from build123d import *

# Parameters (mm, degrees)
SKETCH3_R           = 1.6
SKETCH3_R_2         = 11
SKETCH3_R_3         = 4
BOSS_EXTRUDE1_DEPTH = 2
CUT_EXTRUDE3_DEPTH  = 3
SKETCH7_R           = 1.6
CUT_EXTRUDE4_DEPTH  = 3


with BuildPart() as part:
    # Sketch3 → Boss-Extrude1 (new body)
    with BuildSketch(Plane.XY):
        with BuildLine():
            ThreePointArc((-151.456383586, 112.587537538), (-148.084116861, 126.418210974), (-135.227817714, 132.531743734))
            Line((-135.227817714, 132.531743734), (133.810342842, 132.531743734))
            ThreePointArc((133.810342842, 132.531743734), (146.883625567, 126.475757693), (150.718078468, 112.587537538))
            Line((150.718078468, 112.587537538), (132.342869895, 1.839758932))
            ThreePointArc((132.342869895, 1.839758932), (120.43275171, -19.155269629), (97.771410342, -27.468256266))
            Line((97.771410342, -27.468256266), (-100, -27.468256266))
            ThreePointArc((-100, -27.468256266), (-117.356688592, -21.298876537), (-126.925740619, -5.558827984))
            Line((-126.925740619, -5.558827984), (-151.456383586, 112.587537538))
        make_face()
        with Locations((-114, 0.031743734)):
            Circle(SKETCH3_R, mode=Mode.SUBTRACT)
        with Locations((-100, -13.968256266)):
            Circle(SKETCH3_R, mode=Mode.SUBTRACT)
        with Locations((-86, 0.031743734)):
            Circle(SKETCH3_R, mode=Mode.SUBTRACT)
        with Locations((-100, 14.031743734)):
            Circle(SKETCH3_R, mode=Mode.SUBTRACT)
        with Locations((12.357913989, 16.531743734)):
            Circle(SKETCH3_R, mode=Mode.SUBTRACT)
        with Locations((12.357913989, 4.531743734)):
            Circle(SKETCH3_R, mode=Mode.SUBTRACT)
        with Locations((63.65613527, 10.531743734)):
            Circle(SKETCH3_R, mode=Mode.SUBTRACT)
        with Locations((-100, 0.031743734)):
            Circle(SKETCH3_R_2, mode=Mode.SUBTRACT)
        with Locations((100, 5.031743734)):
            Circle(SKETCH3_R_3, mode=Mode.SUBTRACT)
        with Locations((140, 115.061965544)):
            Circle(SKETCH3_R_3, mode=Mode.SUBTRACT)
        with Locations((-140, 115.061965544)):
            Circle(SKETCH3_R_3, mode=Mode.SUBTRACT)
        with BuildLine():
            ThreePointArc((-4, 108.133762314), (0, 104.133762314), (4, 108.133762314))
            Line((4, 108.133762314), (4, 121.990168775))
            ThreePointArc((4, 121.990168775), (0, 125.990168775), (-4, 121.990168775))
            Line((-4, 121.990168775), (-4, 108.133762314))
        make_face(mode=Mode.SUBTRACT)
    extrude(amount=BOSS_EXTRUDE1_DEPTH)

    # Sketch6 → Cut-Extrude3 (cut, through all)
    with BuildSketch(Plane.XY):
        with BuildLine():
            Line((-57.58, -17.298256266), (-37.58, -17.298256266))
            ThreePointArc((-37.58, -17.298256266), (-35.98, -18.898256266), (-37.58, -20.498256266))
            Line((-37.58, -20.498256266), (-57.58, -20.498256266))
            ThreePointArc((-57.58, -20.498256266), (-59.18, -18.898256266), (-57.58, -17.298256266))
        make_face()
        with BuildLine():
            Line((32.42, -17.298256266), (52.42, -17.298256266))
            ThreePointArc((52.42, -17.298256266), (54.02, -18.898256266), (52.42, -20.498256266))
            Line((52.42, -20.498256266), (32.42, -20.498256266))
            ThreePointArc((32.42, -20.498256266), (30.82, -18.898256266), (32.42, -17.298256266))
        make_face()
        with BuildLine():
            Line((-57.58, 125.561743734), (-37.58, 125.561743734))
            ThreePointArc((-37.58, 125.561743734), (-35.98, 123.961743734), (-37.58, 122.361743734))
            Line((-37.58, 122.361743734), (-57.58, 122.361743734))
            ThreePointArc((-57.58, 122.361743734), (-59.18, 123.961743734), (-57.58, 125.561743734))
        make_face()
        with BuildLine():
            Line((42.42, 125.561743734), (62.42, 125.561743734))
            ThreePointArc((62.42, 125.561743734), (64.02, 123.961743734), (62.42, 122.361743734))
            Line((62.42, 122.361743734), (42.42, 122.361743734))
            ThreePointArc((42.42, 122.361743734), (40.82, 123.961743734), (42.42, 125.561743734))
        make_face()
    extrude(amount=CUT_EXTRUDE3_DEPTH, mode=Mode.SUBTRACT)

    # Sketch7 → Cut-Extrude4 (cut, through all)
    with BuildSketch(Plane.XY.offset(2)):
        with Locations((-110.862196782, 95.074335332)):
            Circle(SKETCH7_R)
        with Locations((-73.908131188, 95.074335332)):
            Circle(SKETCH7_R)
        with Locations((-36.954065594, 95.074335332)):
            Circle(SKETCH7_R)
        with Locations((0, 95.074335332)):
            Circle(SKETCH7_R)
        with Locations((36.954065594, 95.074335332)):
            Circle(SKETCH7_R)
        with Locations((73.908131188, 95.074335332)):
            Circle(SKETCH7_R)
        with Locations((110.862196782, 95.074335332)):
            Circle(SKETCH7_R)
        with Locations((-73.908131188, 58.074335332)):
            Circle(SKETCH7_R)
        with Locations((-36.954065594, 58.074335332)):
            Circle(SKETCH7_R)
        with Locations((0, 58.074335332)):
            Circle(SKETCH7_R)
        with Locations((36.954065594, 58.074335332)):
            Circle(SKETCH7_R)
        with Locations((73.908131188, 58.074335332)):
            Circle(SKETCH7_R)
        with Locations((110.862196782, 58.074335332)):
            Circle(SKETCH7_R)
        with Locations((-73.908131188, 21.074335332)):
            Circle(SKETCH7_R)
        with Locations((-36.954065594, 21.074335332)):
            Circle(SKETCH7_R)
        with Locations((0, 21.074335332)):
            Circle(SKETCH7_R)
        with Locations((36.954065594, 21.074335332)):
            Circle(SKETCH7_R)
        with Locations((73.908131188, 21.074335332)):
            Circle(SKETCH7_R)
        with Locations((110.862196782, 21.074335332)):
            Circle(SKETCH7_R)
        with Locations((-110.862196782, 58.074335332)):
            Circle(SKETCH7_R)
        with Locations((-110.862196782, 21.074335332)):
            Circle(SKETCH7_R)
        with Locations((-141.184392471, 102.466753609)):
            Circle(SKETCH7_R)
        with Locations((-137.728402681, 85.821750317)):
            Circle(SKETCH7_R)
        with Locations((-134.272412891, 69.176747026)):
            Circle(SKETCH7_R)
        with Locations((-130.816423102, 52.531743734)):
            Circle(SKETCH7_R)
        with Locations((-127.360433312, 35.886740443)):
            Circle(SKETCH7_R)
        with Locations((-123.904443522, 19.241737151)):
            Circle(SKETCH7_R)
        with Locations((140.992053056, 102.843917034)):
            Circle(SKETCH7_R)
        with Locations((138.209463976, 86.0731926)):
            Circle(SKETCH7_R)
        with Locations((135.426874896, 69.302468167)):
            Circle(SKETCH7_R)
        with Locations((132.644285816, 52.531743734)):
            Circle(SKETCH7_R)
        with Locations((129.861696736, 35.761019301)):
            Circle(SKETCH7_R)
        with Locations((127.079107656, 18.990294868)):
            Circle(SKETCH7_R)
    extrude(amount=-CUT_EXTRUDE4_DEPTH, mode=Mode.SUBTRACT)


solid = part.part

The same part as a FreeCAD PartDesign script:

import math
import FreeCAD as App
import Part
import Sketcher
from FreeCAD import Vector

doc = App.newDocument("Part")
body = doc.addObject("PartDesign::Body", "Body")

# Sketch on XY plane
sketch1 = body.newObject("Sketcher::SketchObject", "Sketch")
sketch1.AttachmentSupport = (doc.getObject("XY_Plane"), [""])
sketch1.MapMode = "FlatFace"
sketch1.addGeometry([
    Part.ArcOfCircle(Part.Circle(Vector(-135.2, 116, 0), Vector(0, 0, 1), 16.6), math.radians(90), math.radians(192)),  # 0
    Part.LineSegment(Vector(-151.5, 112.6, 0), Vector(-126.9, -5.6, 0)),  # 1
    Part.ArcOfCircle(Part.Circle(Vector(-100, 0, 0), Vector(0, 0, 1), 27.5), math.radians(-168), math.radians(-90)),  # 2
    Part.LineSegment(Vector(-100, -27.5, 0), Vector(97.8, -27.5, 0)),  # 3
    Part.ArcOfCircle(Part.Circle(Vector(97.8, 7.6, 0), Vector(0, 0, 1), 35), math.radians(-90), math.radians(-9)),  # 4
    Part.LineSegment(Vector(132.3, 1.8, 0), Vector(150.7, 112.6, 0)),  # 5
    Part.ArcOfCircle(Part.Circle(Vector(133.8, 115.4, 0), Vector(0, 0, 1), 17.1), math.radians(-9), math.radians(90)),  # 6
    Part.LineSegment(Vector(133.8, 132.5, 0), Vector(-135.2, 132.5, 0)),  # 7
    Part.Circle(Vector(100, 5, 0), Vector(0, 0, 1), 4),  # 8
    Part.Circle(Vector(63.7, 10.5, 0), Vector(0, 0, 1), 1.6),  # 9
    Part.Circle(Vector(12.4, 4.5, 0), Vector(0, 0, 1), 1.6),  # 10
    Part.Circle(Vector(12.4, 16.5, 0), Vector(0, 0, 1), 1.6),  # 11
    Part.Circle(Vector(-100, -14, 0), Vector(0, 0, 1), 1.6),  # 12
    Part.Circle(Vector(-86, 0, 0), Vector(0, 0, 1), 1.6),  # 13
    Part.Circle(Vector(-100, 0, 0), Vector(0, 0, 1), 11),  # 14
    Part.Circle(Vector(-114, 0, 0), Vector(0, 0, 1), 1.6),  # 15
    Part.Circle(Vector(-100, 14, 0), Vector(0, 0, 1), 1.6),  # 16
    Part.Circle(Vector(140, 115.1, 0), Vector(0, 0, 1), 4),  # 17
    Part.LineSegment(Vector(-4, 108.1, 0), Vector(-4, 122, 0)),  # 18
    Part.ArcOfCircle(Part.Circle(Vector(0, 122, 0), Vector(0, 0, 1), 4), math.radians(0), math.radians(180)),  # 19
    Part.LineSegment(Vector(4, 122, 0), Vector(4, 108.1, 0)),  # 20
    Part.ArcOfCircle(Part.Circle(Vector(0, 108.1, 0), Vector(0, 0, 1), 4), math.radians(180), math.radians(360)),  # 21
    Part.Circle(Vector(-140, 115.1, 0), Vector(0, 0, 1), 4),  # 22
], False)
sketch1.addConstraint([
    Sketcher.Constraint("Tangent", 0, 2, 1, 1),
    Sketcher.Constraint("Tangent", 1, 2, 2, 1),
    Sketcher.Constraint("Tangent", 2, 2, 3, 1),
    Sketcher.Constraint("Tangent", 3, 2, 4, 1),
    Sketcher.Constraint("Tangent", 4, 2, 5, 1),
    Sketcher.Constraint("Tangent", 5, 2, 6, 1),
    Sketcher.Constraint("Tangent", 6, 2, 7, 1),
    Sketcher.Constraint("Tangent", 7, 2, 0, 1),
    Sketcher.Constraint("Tangent", 18, 2, 19, 2),
    Sketcher.Constraint("Tangent", 19, 1, 20, 1),
    Sketcher.Constraint("Tangent", 20, 2, 21, 2),
    Sketcher.Constraint("Tangent", 21, 1, 18, 1),
    Sketcher.Constraint("Horizontal", 3),
    Sketcher.Constraint("Horizontal", 7),
    Sketcher.Constraint("Vertical", 18),
    Sketcher.Constraint("Vertical", 20),
    Sketcher.Constraint("Coincident", 14, 3, 2, 3),
    Sketcher.Constraint("Equal", 9, 10),
    Sketcher.Constraint("Equal", 10, 11),
    Sketcher.Constraint("Equal", 11, 12),
    Sketcher.Constraint("Equal", 12, 13),
    Sketcher.Constraint("Equal", 13, 15),
    Sketcher.Constraint("Equal", 15, 16),
    Sketcher.Constraint("Equal", 8, 17),
    Sketcher.Constraint("Equal", 17, 19),
    Sketcher.Constraint("Equal", 21, 22),
    Sketcher.Constraint("Symmetric", 17, 3, 22, 3, -2),
    Sketcher.Constraint("PointOnObject", 19, 3, -2),
    Sketcher.Constraint("Horizontal", 2, 3, 13, 3),
    Sketcher.Constraint("Horizontal", 14, 3, 15, 3),
    Sketcher.Constraint("Horizontal", 0, 2, 5, 2),
    Sketcher.Constraint("Vertical", 10, 3, 11, 3),
    Sketcher.Constraint("Vertical", 2, 3, 12, 3),
    Sketcher.Constraint("Vertical", 14, 3, 16, 3),
    Sketcher.Constraint("Diameter", 8, 8.0),
    Sketcher.Constraint("Diameter", 14, 22.0),
    Sketcher.Constraint("Diameter", 9, 3.2),
    Sketcher.Constraint("Radius", 2, 27.5),
    Sketcher.Constraint("DistanceX", 2, 3, -1, 1, 100.0),
    Sketcher.Constraint("DistanceX", -1, 1, 8, 3, 100.0),
    Sketcher.Constraint("DistanceX", 13, 3, -1, 1, 86.0),
    Sketcher.Constraint("DistanceX", 15, 3, -1, 1, 114.0),
    Sketcher.Constraint("DistanceX", -1, 1, 17, 3, 140.0),
    Sketcher.Constraint("DistanceY", 2, 3, 8, 3, 5.0),
    Sketcher.Constraint("DistanceY", 10, 3, 9, 3, 6.0),
    Sketcher.Constraint("DistanceY", 10, 3, 11, 3, 12.0),
    Sketcher.Constraint("DistanceY", 12, 3, 2, 3, 14.0),
    Sketcher.Constraint("DistanceY", 14, 3, 16, 3, 14.0),
    Sketcher.Constraint("DistanceY", 3, 2, 9, 3, 38.0),
    Sketcher.Constraint("DistanceY", 16, 3, 7, 2, 118.5),
    Sketcher.Constraint("Radius", 0, 16.574681),
    Sketcher.Constraint("Radius", 4, 35.044092),
    Sketcher.Constraint("Radius", 6, 17.138884),
    Sketcher.Constraint("DistanceX", 3, 1, 3, 2, 197.77141),
    Sketcher.Constraint("DistanceX", 7, 2, 7, 1, 269.038161),
    Sketcher.Constraint("DistanceY", 18, 1, 18, 2, 13.856406),
    Sketcher.Constraint("DistanceY", -1, 1, 6, 3, 115.392859),
    Sketcher.Constraint("DistanceY", -1, 1, 19, 3, 121.990169),
    Sketcher.Constraint("DistanceX", 10, 3, 9, 3, 51.298221),
    Sketcher.Constraint("DistanceX", 10, 3, 6, 3, 121.452429),
    Sketcher.Constraint("DistanceY", 4, 3, 17, 3, 107.48613),
])
pad1 = body.newObject("PartDesign::Pad", "Pad")
pad1.Profile = sketch1
pad1.Length = 2

# Sketch on XY plane
sketch2 = body.newObject("Sketcher::SketchObject", "Sketch001")
sketch2.AttachmentSupport = (doc.getObject("XY_Plane"), [""])
sketch2.MapMode = "FlatFace"
sketch2.addGeometry([
    Part.LineSegment(Vector(-37.6, -17.3, 0), Vector(-57.6, -17.3, 0)),  # 0
    Part.ArcOfCircle(Part.Circle(Vector(-57.6, -18.9, 0), Vector(0, 0, 1), 1.6), math.radians(90), math.radians(270)),  # 1
    Part.LineSegment(Vector(-57.6, -20.5, 0), Vector(-37.6, -20.5, 0)),  # 2
    Part.ArcOfCircle(Part.Circle(Vector(-37.6, -18.9, 0), Vector(0, 0, 1), 1.6), math.radians(-90), math.radians(90)),  # 3
    Part.LineSegment(Vector(52.4, -17.3, 0), Vector(32.4, -17.3, 0)),  # 4
    Part.ArcOfCircle(Part.Circle(Vector(32.4, -18.9, 0), Vector(0, 0, 1), 1.6), math.radians(90), math.radians(270)),  # 5
    Part.LineSegment(Vector(32.4, -20.5, 0), Vector(52.4, -20.5, 0)),  # 6
    Part.ArcOfCircle(Part.Circle(Vector(52.4, -18.9, 0), Vector(0, 0, 1), 1.6), math.radians(-90), math.radians(90)),  # 7
    Part.LineSegment(Vector(-37.6, 125.6, 0), Vector(-57.6, 125.6, 0)),  # 8
    Part.ArcOfCircle(Part.Circle(Vector(-57.6, 124, 0), Vector(0, 0, 1), 1.6), math.radians(90), math.radians(270)),  # 9
    Part.LineSegment(Vector(-57.6, 122.4, 0), Vector(-37.6, 122.4, 0)),  # 10
    Part.ArcOfCircle(Part.Circle(Vector(-37.6, 124, 0), Vector(0, 0, 1), 1.6), math.radians(-90), math.radians(90)),  # 11
    Part.LineSegment(Vector(62.4, 125.6, 0), Vector(42.4, 125.6, 0)),  # 12
    Part.ArcOfCircle(Part.Circle(Vector(42.4, 124, 0), Vector(0, 0, 1), 1.6), math.radians(90), math.radians(270)),  # 13
    Part.LineSegment(Vector(42.4, 122.4, 0), Vector(62.4, 122.4, 0)),  # 14
    Part.ArcOfCircle(Part.Circle(Vector(62.4, 124, 0), Vector(0, 0, 1), 1.6), math.radians(-90), math.radians(90)),  # 15
], False)
sketch2.addConstraint([
    Sketcher.Constraint("Tangent", 0, 2, 1, 1),
    Sketcher.Constraint("Tangent", 1, 2, 2, 1),
    Sketcher.Constraint("Tangent", 2, 2, 3, 1),
    Sketcher.Constraint("Tangent", 3, 2, 0, 1),
    Sketcher.Constraint("Tangent", 4, 2, 5, 1),
    Sketcher.Constraint("Tangent", 5, 2, 6, 1),
    Sketcher.Constraint("Tangent", 6, 2, 7, 1),
    Sketcher.Constraint("Tangent", 7, 2, 4, 1),
    Sketcher.Constraint("Tangent", 8, 2, 9, 1),
    Sketcher.Constraint("Tangent", 9, 2, 10, 1),
    Sketcher.Constraint("Tangent", 10, 2, 11, 1),
    Sketcher.Constraint("Tangent", 11, 2, 8, 1),
    Sketcher.Constraint("Tangent", 12, 2, 13, 1),
    Sketcher.Constraint("Tangent", 13, 2, 14, 1),
    Sketcher.Constraint("Tangent", 14, 2, 15, 1),
    Sketcher.Constraint("Tangent", 15, 2, 12, 1),
    Sketcher.Constraint("Horizontal", 0),
    Sketcher.Constraint("Horizontal", 2),
    Sketcher.Constraint("Horizontal", 4),
    Sketcher.Constraint("Horizontal", 6),
    Sketcher.Constraint("Horizontal", 8),
    Sketcher.Constraint("Horizontal", 10),
    Sketcher.Constraint("Horizontal", 12),
    Sketcher.Constraint("Horizontal", 14),
    Sketcher.Constraint("Equal", 3, 5),
    Sketcher.Constraint("Equal", 7, 9),
    Sketcher.Constraint("Equal", 11, 13),
    Sketcher.Constraint("Horizontal", 3, 3, 5, 3),
    Sketcher.Constraint("Horizontal", 11, 3, 13, 3),
    Sketcher.Constraint("Vertical", 1, 3, 9, 3),
    Sketcher.Constraint("Vertical", 3, 3, 11, 3),
    Sketcher.Constraint("Equal", 2, 4),
    Sketcher.Constraint("Equal", 10, 12),
    Sketcher.Constraint("Radius", 1, 1.6),
    Sketcher.Constraint("DistanceX", 0, 2, 0, 1, 20.0),
    Sketcher.Constraint("DistanceX", 3, 3, 5, 3, 70.0),
    Sketcher.Constraint("DistanceX", 11, 3, 13, 3, 80.0),
    Sketcher.Constraint("DistanceX", 1, 3, -1, 1, 57.58),
    Sketcher.Constraint("DistanceY", 1, 3, 9, 3, 142.86),
    Sketcher.Constraint("DistanceY", 1, 3, -1, 1, 18.898256),
])
pocket1 = body.newObject("PartDesign::Pocket", "Pocket")
pocket1.Profile = sketch2
pocket1.Type = "ThroughAll"
pocket1.Reversed = True

# Sketch on XY plane
sketch3 = body.newObject("Sketcher::SketchObject", "Sketch002")
sketch3.AttachmentSupport = (doc.getObject("XY_Plane"), [""])
sketch3.MapMode = "FlatFace"
sketch3.AttachmentOffset = App.Placement(Vector(0, 0, 2), App.Rotation())
sketch3.addGeometry([
    Part.Circle(Vector(-110.9, 95.1, 0), Vector(0, 0, 1), 1.6),  # 0
    Part.Circle(Vector(-73.9, 95.1, 0), Vector(0, 0, 1), 1.6),  # 1
    Part.Circle(Vector(-37, 95.1, 0), Vector(0, 0, 1), 1.6),  # 2
    Part.Circle(Vector(0, 95.1, 0), Vector(0, 0, 1), 1.6),  # 3
    Part.Circle(Vector(37, 95.1, 0), Vector(0, 0, 1), 1.6),  # 4
    Part.Circle(Vector(73.9, 95.1, 0), Vector(0, 0, 1), 1.6),  # 5
    Part.Circle(Vector(110.9, 95.1, 0), Vector(0, 0, 1), 1.6),  # 6
    Part.Circle(Vector(-73.9, 58.1, 0), Vector(0, 0, 1), 1.6),  # 7
    Part.Circle(Vector(-37, 58.1, 0), Vector(0, 0, 1), 1.6),  # 8
    Part.Circle(Vector(0, 58.1, 0), Vector(0, 0, 1), 1.6),  # 9
    Part.Circle(Vector(37, 58.1, 0), Vector(0, 0, 1), 1.6),  # 10
    Part.Circle(Vector(73.9, 58.1, 0), Vector(0, 0, 1), 1.6),  # 11
    Part.Circle(Vector(110.9, 58.1, 0), Vector(0, 0, 1), 1.6),  # 12
    Part.Circle(Vector(-73.9, 21.1, 0), Vector(0, 0, 1), 1.6),  # 13
    Part.Circle(Vector(-37, 21.1, 0), Vector(0, 0, 1), 1.6),  # 14
    Part.Circle(Vector(0, 21.1, 0), Vector(0, 0, 1), 1.6),  # 15
    Part.Circle(Vector(37, 21.1, 0), Vector(0, 0, 1), 1.6),  # 16
    Part.Circle(Vector(73.9, 21.1, 0), Vector(0, 0, 1), 1.6),  # 17
    Part.Circle(Vector(110.9, 21.1, 0), Vector(0, 0, 1), 1.6),  # 18
    Part.Circle(Vector(-110.9, 58.1, 0), Vector(0, 0, 1), 1.6),  # 19
    Part.Circle(Vector(-110.9, 21.1, 0), Vector(0, 0, 1), 1.6),  # 20
    Part.Circle(Vector(-141.2, 102.5, 0), Vector(0, 0, 1), 1.6),  # 21
    Part.Circle(Vector(-137.7, 85.8, 0), Vector(0, 0, 1), 1.6),  # 22
    Part.Circle(Vector(-134.3, 69.2, 0), Vector(0, 0, 1), 1.6),  # 23
    Part.Circle(Vector(-130.8, 52.5, 0), Vector(0, 0, 1), 1.6),  # 24
    Part.Circle(Vector(-127.4, 35.9, 0), Vector(0, 0, 1), 1.6),  # 25
    Part.Circle(Vector(-123.9, 19.2, 0), Vector(0, 0, 1), 1.6),  # 26
    Part.Circle(Vector(141, 102.8, 0), Vector(0, 0, 1), 1.6),  # 27
    Part.Circle(Vector(138.2, 86.1, 0), Vector(0, 0, 1), 1.6),  # 28
    Part.Circle(Vector(135.4, 69.3, 0), Vector(0, 0, 1), 1.6),  # 29
    Part.Circle(Vector(132.6, 52.5, 0), Vector(0, 0, 1), 1.6),  # 30
    Part.Circle(Vector(129.9, 35.8, 0), Vector(0, 0, 1), 1.6),  # 31
    Part.Circle(Vector(127.1, 19, 0), Vector(0, 0, 1), 1.6),  # 32
], False)
sketch3.addConstraint([
    Sketcher.Constraint("Equal", 0, 1),
    Sketcher.Constraint("Equal", 1, 2),
    Sketcher.Constraint("Equal", 2, 3),
    Sketcher.Constraint("Equal", 3, 4),
    Sketcher.Constraint("Equal", 4, 5),
    Sketcher.Constraint("Equal", 5, 6),
    Sketcher.Constraint("Equal", 6, 7),
    Sketcher.Constraint("Equal", 7, 8),
    Sketcher.Constraint("Equal", 8, 9),
    Sketcher.Constraint("Equal", 9, 10),
    Sketcher.Constraint("Equal", 10, 11),
    Sketcher.Constraint("Equal", 11, 12),
    Sketcher.Constraint("Equal", 12, 13),
    Sketcher.Constraint("Equal", 13, 14),
    Sketcher.Constraint("Equal", 14, 15),
    Sketcher.Constraint("Equal", 15, 16),
    Sketcher.Constraint("Equal", 16, 17),
    Sketcher.Constraint("Equal", 17, 18),
    Sketcher.Constraint("Equal", 18, 19),
    Sketcher.Constraint("Equal", 19, 20),
    Sketcher.Constraint("Equal", 20, 21),
    Sketcher.Constraint("Equal", 21, 22),
    Sketcher.Constraint("Equal", 22, 23),
    Sketcher.Constraint("Equal", 23, 24),
    Sketcher.Constraint("Equal", 24, 25),
    Sketcher.Constraint("Equal", 25, 26),
    Sketcher.Constraint("Equal", 26, 27),
    Sketcher.Constraint("Equal", 27, 28),
    Sketcher.Constraint("Equal", 28, 29),
    Sketcher.Constraint("Equal", 29, 30),
    Sketcher.Constraint("Equal", 30, 31),
    Sketcher.Constraint("Equal", 31, 32),
    Sketcher.Constraint("Symmetric", 2, 3, 4, 3, -2),
    Sketcher.Constraint("Symmetric", 1, 3, 5, 3, -2),
    Sketcher.Constraint("Symmetric", 0, 3, 6, 3, -2),
    Sketcher.Constraint("Symmetric", 8, 3, 10, 3, -2),
    Sketcher.Constraint("Symmetric", 7, 3, 11, 3, -2),
    Sketcher.Constraint("Symmetric", 14, 3, 16, 3, -2),
    Sketcher.Constraint("Symmetric", 13, 3, 17, 3, -2),
    Sketcher.Constraint("Symmetric", 12, 3, 19, 3, -2),
    Sketcher.Constraint("Symmetric", 18, 3, 20, 3, -2),
    Sketcher.Constraint("PointOnObject", 3, 3, -2),
    Sketcher.Constraint("PointOnObject", 9, 3, -2),
    Sketcher.Constraint("PointOnObject", 15, 3, -2),
    Sketcher.Constraint("Horizontal", 0, 3, 1, 3),
    Sketcher.Constraint("Horizontal", 1, 3, 2, 3),
    Sketcher.Constraint("Horizontal", 2, 3, 3, 3),
    Sketcher.Constraint("Horizontal", 7, 3, 8, 3),
    Sketcher.Constraint("Horizontal", 8, 3, 9, 3),
    Sketcher.Constraint("Horizontal", 11, 3, 12, 3),
    Sketcher.Constraint("Horizontal", 13, 3, 14, 3),
    Sketcher.Constraint("Horizontal", 14, 3, 15, 3),
    Sketcher.Constraint("Horizontal", 17, 3, 18, 3),
    Sketcher.Constraint("Horizontal", 24, 3, 30, 3),
    Sketcher.Constraint("Vertical", 1, 3, 7, 3),
    Sketcher.Constraint("Vertical", 2, 3, 8, 3),
    Sketcher.Constraint("Vertical", 6, 3, 12, 3),
    Sketcher.Constraint("Vertical", 7, 3, 13, 3),
    Sketcher.Constraint("Vertical", 8, 3, 14, 3),
    Sketcher.Constraint("Vertical", 12, 3, 18, 3),
    Sketcher.Constraint("Diameter", 0, 3.2),
    Sketcher.Constraint("DistanceY", 7, 3, 1, 3, 37.0),
    Sketcher.Constraint("DistanceY", 13, 3, 7, 3, 37.0),
    Sketcher.Constraint("DistanceY", 26, 3, 20, 3, 1.832598),
    Sketcher.Constraint("DistanceX", 18, 3, 31, 3, 18.9995),
    Sketcher.Constraint("DistanceX", 1, 3, -1, 1, 73.908131),
    Sketcher.Constraint("DistanceY", -1, 1, 22, 3, 85.82175),
    Sketcher.Constraint("DistanceY", -1, 1, 25, 3, 35.88674),
    Sketcher.Constraint("DistanceY", -1, 1, 29, 3, 69.302468),
    Sketcher.Constraint("DistanceY", -1, 1, 31, 3, 35.761019),
    Sketcher.Constraint("DistanceX", 0, 3, 2, 3, 73.908131),
    Sketcher.Constraint("DistanceX", 2, 3, 4, 3, 73.908131),
    Sketcher.Constraint("DistanceY", 0, 3, 21, 3, 7.392418),
    Sketcher.Constraint("DistanceX", 21, 3, 1, 3, 67.276261),
    Sketcher.Constraint("DistanceX", 21, 3, 22, 3, 3.45599),
    Sketcher.Constraint("DistanceX", 22, 3, 23, 3, 3.45599),
    Sketcher.Constraint("DistanceY", 19, 3, 23, 3, 11.102412),
    Sketcher.Constraint("DistanceX", 23, 3, 24, 3, 3.45599),
    Sketcher.Constraint("DistanceY", 24, 3, 19, 3, 5.542592),
    Sketcher.Constraint("DistanceX", 24, 3, 25, 3, 3.45599),
    Sketcher.Constraint("DistanceX", 25, 3, 26, 3, 3.45599),
    Sketcher.Constraint("DistanceY", 6, 3, 27, 3, 7.769582),
    Sketcher.Constraint("DistanceX", 5, 3, 27, 3, 67.083922),
    Sketcher.Constraint("DistanceX", 28, 3, 27, 3, 2.782589),
    Sketcher.Constraint("DistanceX", 29, 3, 28, 3, 2.782589),
    Sketcher.Constraint("DistanceY", 29, 3, 27, 3, 33.541449),
    Sketcher.Constraint("DistanceX", 30, 3, 29, 3, 2.782589),
    Sketcher.Constraint("DistanceY", 30, 3, 28, 3, 33.541449),
    Sketcher.Constraint("DistanceX", 18, 3, 32, 3, 16.216911),
    Sketcher.Constraint("DistanceY", 32, 3, 18, 3, 2.08404),
])
pocket2 = body.newObject("PartDesign::Pocket", "Pocket001")
pocket2.Profile = sketch3
pocket2.Type = "ThroughAll"

doc.recompute()
